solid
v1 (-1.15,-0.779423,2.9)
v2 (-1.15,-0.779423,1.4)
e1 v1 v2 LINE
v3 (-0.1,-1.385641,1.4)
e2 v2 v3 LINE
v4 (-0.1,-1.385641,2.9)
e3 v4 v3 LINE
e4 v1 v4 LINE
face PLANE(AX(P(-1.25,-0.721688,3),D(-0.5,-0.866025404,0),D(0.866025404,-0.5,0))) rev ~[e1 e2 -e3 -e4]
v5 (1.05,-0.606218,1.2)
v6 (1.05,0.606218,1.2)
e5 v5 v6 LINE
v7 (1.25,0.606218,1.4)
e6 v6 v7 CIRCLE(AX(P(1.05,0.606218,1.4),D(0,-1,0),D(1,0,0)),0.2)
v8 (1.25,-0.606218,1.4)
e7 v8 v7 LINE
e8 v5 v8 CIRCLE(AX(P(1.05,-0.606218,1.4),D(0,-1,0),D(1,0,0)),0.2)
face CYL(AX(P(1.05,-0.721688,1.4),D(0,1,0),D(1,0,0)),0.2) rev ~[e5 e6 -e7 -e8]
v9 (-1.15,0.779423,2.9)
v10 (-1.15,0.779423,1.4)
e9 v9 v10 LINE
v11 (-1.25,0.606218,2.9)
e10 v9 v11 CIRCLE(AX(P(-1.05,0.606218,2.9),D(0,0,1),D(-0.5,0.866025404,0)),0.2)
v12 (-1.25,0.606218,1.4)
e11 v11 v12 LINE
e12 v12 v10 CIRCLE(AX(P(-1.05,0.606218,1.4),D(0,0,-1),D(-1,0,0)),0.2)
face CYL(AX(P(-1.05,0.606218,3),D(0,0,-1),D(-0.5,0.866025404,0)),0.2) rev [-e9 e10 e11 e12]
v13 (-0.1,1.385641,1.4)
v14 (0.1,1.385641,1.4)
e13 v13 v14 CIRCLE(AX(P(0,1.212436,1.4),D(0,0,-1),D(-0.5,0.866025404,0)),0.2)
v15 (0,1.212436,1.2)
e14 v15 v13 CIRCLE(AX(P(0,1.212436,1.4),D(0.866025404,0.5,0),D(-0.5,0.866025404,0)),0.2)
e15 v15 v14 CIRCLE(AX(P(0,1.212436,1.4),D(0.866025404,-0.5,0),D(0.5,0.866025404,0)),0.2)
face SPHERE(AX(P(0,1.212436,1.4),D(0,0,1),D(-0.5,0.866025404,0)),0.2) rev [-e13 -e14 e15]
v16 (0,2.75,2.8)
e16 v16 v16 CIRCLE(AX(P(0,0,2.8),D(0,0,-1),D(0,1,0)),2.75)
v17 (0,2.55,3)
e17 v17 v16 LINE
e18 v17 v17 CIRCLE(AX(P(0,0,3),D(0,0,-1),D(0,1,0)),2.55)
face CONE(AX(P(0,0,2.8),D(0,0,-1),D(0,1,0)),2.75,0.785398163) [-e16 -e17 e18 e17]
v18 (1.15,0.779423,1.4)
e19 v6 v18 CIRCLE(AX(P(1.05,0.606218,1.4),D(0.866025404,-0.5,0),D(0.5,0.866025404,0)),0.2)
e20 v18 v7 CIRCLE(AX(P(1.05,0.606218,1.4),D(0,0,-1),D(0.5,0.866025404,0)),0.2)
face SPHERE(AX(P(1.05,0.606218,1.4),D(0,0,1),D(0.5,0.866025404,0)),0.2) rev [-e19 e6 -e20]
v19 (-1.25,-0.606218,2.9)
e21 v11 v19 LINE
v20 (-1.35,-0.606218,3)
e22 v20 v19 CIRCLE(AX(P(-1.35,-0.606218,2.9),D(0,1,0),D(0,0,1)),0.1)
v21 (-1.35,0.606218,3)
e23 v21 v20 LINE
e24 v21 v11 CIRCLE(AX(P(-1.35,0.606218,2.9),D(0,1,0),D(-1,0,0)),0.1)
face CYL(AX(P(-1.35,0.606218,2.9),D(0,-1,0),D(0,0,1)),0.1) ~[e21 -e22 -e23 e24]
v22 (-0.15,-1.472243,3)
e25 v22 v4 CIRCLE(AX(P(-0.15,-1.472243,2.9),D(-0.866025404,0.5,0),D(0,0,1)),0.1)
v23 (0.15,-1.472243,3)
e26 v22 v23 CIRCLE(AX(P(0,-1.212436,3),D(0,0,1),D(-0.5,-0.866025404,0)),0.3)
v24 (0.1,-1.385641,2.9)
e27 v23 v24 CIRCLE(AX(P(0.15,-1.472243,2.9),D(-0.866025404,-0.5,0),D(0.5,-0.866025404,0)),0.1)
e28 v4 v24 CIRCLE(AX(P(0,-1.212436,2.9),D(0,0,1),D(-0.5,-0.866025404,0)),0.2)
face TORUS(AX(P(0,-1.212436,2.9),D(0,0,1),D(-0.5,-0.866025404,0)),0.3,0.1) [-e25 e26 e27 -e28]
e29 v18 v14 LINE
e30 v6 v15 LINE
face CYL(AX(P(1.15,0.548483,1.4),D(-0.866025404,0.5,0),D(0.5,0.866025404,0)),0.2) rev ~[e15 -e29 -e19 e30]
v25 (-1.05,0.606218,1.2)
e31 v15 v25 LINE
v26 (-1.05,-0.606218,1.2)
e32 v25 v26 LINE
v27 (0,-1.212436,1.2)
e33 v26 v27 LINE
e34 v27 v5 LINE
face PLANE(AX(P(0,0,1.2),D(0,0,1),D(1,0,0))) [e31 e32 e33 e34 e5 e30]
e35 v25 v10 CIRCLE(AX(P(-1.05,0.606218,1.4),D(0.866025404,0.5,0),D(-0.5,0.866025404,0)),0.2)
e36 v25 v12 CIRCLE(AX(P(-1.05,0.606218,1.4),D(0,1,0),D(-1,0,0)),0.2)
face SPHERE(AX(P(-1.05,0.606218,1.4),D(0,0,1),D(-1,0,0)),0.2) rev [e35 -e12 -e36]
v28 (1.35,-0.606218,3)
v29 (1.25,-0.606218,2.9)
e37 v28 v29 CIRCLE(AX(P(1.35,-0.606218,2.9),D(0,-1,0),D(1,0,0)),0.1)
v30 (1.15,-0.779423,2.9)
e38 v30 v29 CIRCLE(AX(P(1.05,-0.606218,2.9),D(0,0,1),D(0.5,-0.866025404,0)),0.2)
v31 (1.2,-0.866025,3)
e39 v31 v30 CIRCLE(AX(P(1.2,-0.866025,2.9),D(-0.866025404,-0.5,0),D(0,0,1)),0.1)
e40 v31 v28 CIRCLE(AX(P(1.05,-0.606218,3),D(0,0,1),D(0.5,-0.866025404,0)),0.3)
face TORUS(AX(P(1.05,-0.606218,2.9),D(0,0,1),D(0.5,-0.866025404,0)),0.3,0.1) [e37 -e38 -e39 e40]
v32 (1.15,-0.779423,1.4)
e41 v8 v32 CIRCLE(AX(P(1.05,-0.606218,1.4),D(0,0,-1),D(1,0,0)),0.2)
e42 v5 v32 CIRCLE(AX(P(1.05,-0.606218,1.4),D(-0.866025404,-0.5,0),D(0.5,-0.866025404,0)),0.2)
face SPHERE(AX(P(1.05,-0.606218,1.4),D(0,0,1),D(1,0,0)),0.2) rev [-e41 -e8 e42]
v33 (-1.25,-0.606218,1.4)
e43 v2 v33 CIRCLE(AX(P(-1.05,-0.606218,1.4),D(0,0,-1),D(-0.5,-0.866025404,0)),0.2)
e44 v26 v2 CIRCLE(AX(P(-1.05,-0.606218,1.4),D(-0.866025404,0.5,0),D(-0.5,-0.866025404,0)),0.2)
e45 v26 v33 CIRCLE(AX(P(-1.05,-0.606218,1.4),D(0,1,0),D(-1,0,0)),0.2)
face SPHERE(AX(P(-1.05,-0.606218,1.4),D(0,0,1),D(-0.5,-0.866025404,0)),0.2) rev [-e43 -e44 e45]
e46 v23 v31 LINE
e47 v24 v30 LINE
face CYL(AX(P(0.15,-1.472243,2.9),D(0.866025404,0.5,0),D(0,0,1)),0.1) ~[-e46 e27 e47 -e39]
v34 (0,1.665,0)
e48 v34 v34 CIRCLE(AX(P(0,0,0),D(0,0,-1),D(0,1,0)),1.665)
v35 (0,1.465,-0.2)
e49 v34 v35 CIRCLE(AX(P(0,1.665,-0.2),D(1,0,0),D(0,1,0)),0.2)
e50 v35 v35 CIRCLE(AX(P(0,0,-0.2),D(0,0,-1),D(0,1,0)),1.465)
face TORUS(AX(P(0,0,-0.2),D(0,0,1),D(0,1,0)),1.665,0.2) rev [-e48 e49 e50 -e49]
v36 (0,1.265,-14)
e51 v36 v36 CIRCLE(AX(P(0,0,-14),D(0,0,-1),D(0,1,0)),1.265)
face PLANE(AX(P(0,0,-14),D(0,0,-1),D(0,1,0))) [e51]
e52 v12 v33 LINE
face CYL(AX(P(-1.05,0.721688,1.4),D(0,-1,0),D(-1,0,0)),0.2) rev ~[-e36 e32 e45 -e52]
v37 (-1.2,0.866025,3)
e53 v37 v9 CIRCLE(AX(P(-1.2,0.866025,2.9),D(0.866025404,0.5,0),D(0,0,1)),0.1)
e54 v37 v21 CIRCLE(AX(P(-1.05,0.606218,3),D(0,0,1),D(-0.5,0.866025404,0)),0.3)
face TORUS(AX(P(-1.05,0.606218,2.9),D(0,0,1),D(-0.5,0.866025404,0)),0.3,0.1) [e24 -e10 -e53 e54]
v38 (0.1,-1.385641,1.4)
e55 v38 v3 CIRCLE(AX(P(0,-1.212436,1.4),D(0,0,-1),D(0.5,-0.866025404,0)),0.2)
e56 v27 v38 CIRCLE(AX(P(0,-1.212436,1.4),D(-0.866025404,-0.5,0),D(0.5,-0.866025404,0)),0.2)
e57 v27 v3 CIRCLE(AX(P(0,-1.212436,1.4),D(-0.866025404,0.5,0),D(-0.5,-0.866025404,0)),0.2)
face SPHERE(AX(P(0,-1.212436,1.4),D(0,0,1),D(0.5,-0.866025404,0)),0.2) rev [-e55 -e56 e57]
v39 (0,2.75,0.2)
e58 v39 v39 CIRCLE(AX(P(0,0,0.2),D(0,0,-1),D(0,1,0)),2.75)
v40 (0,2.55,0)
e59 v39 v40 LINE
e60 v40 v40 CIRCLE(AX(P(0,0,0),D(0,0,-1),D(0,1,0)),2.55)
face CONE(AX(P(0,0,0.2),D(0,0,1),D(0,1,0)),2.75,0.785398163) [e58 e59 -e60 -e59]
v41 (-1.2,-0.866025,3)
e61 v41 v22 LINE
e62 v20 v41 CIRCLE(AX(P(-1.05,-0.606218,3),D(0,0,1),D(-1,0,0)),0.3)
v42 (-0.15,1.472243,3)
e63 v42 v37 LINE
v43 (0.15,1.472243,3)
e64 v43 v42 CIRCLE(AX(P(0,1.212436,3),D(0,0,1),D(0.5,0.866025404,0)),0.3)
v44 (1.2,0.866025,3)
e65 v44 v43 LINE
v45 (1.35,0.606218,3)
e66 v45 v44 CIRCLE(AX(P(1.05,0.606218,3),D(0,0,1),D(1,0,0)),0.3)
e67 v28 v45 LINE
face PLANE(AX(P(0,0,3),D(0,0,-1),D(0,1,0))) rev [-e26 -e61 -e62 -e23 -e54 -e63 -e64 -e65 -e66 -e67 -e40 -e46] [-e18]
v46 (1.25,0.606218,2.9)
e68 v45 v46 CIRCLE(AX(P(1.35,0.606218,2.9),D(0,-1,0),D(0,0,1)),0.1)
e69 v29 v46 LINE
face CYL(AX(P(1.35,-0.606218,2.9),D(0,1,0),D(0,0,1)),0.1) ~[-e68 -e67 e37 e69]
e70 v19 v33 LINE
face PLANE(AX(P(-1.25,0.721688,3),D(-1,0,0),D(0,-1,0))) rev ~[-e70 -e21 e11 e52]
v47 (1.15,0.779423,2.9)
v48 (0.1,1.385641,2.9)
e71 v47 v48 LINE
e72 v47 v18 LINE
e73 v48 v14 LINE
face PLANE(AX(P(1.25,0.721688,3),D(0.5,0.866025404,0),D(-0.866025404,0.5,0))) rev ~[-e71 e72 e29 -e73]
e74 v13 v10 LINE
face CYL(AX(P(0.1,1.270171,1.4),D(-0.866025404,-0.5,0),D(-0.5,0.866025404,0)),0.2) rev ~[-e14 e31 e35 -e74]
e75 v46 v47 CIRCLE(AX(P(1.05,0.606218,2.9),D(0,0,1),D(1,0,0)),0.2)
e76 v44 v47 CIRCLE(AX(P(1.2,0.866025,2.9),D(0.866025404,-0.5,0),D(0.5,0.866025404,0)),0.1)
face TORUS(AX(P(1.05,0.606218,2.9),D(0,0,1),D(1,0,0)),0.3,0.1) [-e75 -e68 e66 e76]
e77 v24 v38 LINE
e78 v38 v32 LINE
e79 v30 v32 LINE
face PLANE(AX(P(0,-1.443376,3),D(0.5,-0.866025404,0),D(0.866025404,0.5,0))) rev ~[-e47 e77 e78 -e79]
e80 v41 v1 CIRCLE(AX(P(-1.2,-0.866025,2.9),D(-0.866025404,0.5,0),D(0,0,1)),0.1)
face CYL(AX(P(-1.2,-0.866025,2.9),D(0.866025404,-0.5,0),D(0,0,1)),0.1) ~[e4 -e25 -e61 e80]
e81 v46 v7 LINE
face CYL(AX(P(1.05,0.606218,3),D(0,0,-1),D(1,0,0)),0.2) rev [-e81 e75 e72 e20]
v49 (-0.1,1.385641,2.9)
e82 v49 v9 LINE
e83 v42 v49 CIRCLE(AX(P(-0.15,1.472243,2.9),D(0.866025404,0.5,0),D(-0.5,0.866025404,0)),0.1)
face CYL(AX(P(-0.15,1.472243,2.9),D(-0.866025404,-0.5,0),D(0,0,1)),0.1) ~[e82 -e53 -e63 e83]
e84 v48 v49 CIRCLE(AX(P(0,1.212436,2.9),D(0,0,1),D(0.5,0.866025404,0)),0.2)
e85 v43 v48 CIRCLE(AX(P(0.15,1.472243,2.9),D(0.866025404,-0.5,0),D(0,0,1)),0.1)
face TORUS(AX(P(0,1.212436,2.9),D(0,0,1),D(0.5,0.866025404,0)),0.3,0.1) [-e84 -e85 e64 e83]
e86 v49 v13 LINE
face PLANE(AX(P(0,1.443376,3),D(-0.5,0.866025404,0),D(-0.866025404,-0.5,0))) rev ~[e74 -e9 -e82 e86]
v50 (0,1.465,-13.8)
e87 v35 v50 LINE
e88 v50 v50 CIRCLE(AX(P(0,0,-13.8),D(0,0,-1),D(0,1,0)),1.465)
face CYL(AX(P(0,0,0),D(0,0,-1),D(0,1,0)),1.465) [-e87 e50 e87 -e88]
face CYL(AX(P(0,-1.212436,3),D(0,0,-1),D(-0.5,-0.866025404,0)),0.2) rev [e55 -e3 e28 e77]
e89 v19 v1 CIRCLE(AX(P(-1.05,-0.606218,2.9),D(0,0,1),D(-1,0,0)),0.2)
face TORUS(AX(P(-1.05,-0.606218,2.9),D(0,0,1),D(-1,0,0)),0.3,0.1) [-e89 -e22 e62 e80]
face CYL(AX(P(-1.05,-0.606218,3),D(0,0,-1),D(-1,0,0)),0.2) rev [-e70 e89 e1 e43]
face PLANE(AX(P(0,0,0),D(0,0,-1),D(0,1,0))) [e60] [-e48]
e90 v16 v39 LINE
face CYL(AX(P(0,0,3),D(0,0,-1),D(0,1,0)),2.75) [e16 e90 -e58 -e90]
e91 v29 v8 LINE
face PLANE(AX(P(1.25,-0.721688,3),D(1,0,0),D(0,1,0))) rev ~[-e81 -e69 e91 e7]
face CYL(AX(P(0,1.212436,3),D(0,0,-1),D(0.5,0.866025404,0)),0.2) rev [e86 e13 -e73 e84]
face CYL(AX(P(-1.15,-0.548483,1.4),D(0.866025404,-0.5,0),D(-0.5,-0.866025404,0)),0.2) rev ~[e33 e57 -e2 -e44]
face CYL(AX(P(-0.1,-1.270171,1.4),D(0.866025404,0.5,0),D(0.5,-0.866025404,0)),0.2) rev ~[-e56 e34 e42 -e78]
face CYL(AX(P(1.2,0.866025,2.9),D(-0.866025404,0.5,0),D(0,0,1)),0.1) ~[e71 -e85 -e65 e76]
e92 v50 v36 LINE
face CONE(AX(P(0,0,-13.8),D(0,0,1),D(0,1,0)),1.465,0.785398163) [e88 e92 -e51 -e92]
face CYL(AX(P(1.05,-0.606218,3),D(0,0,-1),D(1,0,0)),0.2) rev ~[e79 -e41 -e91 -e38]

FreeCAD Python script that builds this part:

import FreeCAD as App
import Part
import Sketcher
from FreeCAD import Vector
Q = App.Units.Quantity


def edges_at(feature, points):
    """Names of the edges that pass closest to the given points."""
    edges = feature.Shape.Edges
    near = lambda p: min(range(len(edges)), key=lambda i: edges[i].distToShape(Part.Vertex(*p))[0])
    return sorted({f"Edge{near(p) + 1}" for p in points})


def add_polygon(sketch, points):
    """Adds a closed chain of lines whose ends are joined by coincident constraints."""
    first, n = sketch.GeometryCount, len(points)
    for a, b in zip(points, points[1:] + points[:1]):
        sketch.addGeometry(Part.LineSegment(App.Vector(*a, 0), App.Vector(*b, 0)), False)
    for i in range(n):
        sketch.addConstraint(Sketcher.Constraint("Coincident", first + i, 2, first + (i + 1) % n, 1))

doc = App.newDocument("Part")
body = doc.addObject("PartDesign::Body", "Body")

# Sketch on YZ plane
sketch1 = doc.addObject("Sketcher::SketchObject", "Sketch")
body.addObject(sketch1)
sketch1.AttachmentSupport = (doc.YZ_Plane, [""])
sketch1.MapMode = "FlatFace"
add_polygon(sketch1, [(2.8, 3), (0, 3), (0, -14), (1.5, -14), (1.5, 0), (2.8, 0)])  # lines 0-5
sketch1.addConstraint([
    Sketcher.Constraint("Horizontal", 0),
    Sketcher.Constraint("Vertical", 1),
    Sketcher.Constraint("Horizontal", 2),
    Sketcher.Constraint("Vertical", 3),
    Sketcher.Constraint("Horizontal", 4),
    Sketcher.Constraint("Vertical", 5),
    Sketcher.Constraint("PointOnObject", 0, 2, -2),
    Sketcher.Constraint("PointOnObject", 3, 2, -1),
    Sketcher.Constraint("DistanceY", 1, 2, 1, 1, 17.0),
    Sketcher.Constraint("DistanceY", 3, 1, 3, 2, 14.0),
    Sketcher.Constraint("DistanceX", 0, 2, 0, 1, 2.75),
    Sketcher.Constraint("DistanceX", 2, 1, 2, 2, 1.465),
])
revolution = doc.addObject("PartDesign::Revolution", "Revolution")
body.addObject(revolution)
revolution.Profile = sketch1
revolution.ReferenceAxis = (sketch1, ["V_Axis"])
revolution.Angle = 360

# Sketch on XY plane
sketch2 = doc.addObject("Sketcher::SketchObject", "Sketch001")
body.addObject(sketch2)
sketch2.AttachmentSupport = (doc.XY_Plane, [""])
sketch2.MapMode = "FlatFace"
sketch2.AttachmentOffset = App.Placement(Vector(0, 0, 3), App.Rotation())
add_polygon(sketch2, [(1.2, -0.7), (1.2, 0.7), (0, 1.4), (-1.2, 0.7), (-1.2, -0.7), (0, -1.4)])  # lines 0-5
sketch2.addConstraint([
    Sketcher.Constraint("Vertical", 0),
    Sketcher.Constraint("Vertical", 3),
    Sketcher.Constraint("Symmetric", 0, 2, 3, 2, -1, 1),
    Sketcher.Constraint("Symmetric", 1, 2, 4, 2, -1, 1),
    Sketcher.Constraint("PointOnObject", 1, 2, -2),
    Sketcher.Constraint("Parallel", 2, 5),
    Sketcher.Constraint("Horizontal", 0, 2, 2, 2),
    Sketcher.Constraint("Angle", 1, Q("150 deg")),
    Sketcher.Constraint("DistanceX", 2, 2, 0, 2, 2.5),
    Sketcher.Constraint("DistanceY", 0, 1, 0, 2, 1.443376),
])
pocket1 = doc.addObject("PartDesign::Pocket", "Pocket")
body.addObject(pocket1)
pocket1.Profile = sketch2
pocket1.Length = 1.8
doc.recompute()

chamfer = doc.addObject("PartDesign::Chamfer", "Chamfer")
body.addObject(chamfer)
chamfer.Base = (pocket1, edges_at(pocket1, [(0, -1.465, -14), (0, -2.75, 0), (0, -2.75, 3)]))
chamfer.Size = 0.2
doc.recompute()

fillet = doc.addObject("PartDesign::Fillet", "Fillet")
body.addObject(fillet)
fillet.Base = (chamfer, edges_at(chamfer, [
    (0.625, -1.083, 1.2),
    (1.25, -0.722, 2.1),
    (-0.625, -1.083, 1.2),
    (0, -1.443, 2.1),
    (-1.25, 0, 1.2),
    (-1.25, -0.722, 2.1),
    (-0.625, 1.083, 1.2),
    (-1.25, 0.722, 2.1),
    (0.625, 1.083, 1.2),
    (0, 1.443, 2.1),
    (1.25, 0, 1.2),
    (1.25, 0.722, 2.1),
    (0, -1.465, 0),
]))
fillet.Radius = 0.2
doc.recompute()

fillet2 = doc.addObject("PartDesign::Fillet", "Fillet001")
body.addObject(fillet2)
fillet2.Base = (fillet, edges_at(fillet, [
    (-0.625, -1.083, 3),
    (-1.25, 0, 3),
    (-0.625, 1.083, 3),
    (0.625, 1.083, 3),
    (1.25, 0, 3),
    (0.625, -1.083, 3),
    (-1.223, -0.706, 3),
    (0, -1.412, 3),
    (1.223, -0.706, 3),
    (1.223, 0.706, 3),
    (0, 1.412, 3),
    (-1.223, 0.706, 3),
]))
fillet2.Radius = 0.1

doc.recompute()
